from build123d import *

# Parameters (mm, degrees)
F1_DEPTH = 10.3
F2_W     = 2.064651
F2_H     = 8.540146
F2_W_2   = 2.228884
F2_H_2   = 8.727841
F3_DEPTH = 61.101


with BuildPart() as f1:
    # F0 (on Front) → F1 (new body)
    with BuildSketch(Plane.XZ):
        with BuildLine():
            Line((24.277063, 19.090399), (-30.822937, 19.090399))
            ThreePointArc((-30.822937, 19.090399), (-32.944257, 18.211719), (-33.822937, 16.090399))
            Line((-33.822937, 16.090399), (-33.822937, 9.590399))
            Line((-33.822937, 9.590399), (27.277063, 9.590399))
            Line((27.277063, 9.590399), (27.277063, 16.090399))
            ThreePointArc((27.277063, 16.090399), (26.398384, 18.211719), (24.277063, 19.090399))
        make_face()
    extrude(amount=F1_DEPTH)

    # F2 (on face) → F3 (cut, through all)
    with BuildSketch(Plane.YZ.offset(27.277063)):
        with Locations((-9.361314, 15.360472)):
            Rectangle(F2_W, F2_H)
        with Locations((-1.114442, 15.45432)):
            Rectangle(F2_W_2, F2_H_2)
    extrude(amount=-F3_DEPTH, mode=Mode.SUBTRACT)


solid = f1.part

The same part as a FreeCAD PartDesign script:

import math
import FreeCAD as App
import Part
import Sketcher

doc = App.newDocument("Part")
body = doc.addObject("PartDesign::Body", "Body")

sketch1 = body.newObject("Sketcher::SketchObject", "Sketch")
sketch1.AttachmentSupport = (doc.getObject("XZ_Plane"), [""])
sketch1.MapMode = "FlatFace"
sketch1.addGeometry([
    Part.LineSegment(App.Vector(24.3, 19.1, 0), App.Vector(-30.8, 19.1, 0)),
    Part.ArcOfCircle(Part.Circle(App.Vector(-30.8, 16.1, 0), App.Vector(0, 0, 1), 3), math.radians(90), math.radians(180)),
    Part.LineSegment(App.Vector(-33.8, 16.1, 0), App.Vector(-33.8, 9.6, 0)),
    Part.LineSegment(App.Vector(-33.8, 9.6, 0), App.Vector(27.3, 9.6, 0)),
    Part.LineSegment(App.Vector(27.3, 9.6, 0), App.Vector(27.3, 16.1, 0)),
    Part.ArcOfCircle(Part.Circle(App.Vector(24.3, 16.1, 0), App.Vector(0, 0, 1), 3), math.radians(0), math.radians(90)),
], False)
sketch1.addConstraint([
    Sketcher.Constraint("Tangent", 0, 2, 1, 1),
    Sketcher.Constraint("Tangent", 1, 2, 2, 1),
    Sketcher.Constraint("Coincident", 2, 2, 3, 1),
    Sketcher.Constraint("Coincident", 3, 2, 4, 1),
    Sketcher.Constraint("Tangent", 4, 2, 5, 1),
    Sketcher.Constraint("Tangent", 5, 2, 0, 1),
    Sketcher.Constraint("Horizontal", 0),
    Sketcher.Constraint("Vertical", 2),
    Sketcher.Constraint("Horizontal", 3),
    Sketcher.Constraint("Vertical", 4),
    Sketcher.Constraint("Equal", 1, 5),
    Sketcher.Constraint("Radius", 1, 3.000001),
    Sketcher.Constraint("DistanceX", 0, 2, 0, 1, 55.1),
    Sketcher.Constraint("DistanceY", 2, 2, 2, 1, 6.5),
    Sketcher.Constraint("DistanceY", -1, 1, 5, 3, 16.0904),
    Sketcher.Constraint("DistanceX", 1, 3, -1, 1, 30.822936),
])
pad1 = body.newObject("PartDesign::Pad", "Pad")
pad1.Profile = sketch1
pad1.Length = 10.3

sketch2 = body.newObject("Sketcher::SketchObject", "Sketch001")
sketch2.AttachmentSupport = (doc.getObject("YZ_Plane"), [""])
sketch2.MapMode = "FlatFace"
sketch2.AttachmentOffset = App.Placement(App.Vector(0, 0, 27.277063), App.Rotation())
sketch2.addGeometry([
    Part.LineSegment(App.Vector(-10.4, 19.6, 0), App.Vector(-10.4, 11.1, 0)),
    Part.LineSegment(App.Vector(-10.4, 11.1, 0), App.Vector(-8.3, 11.1, 0)),
    Part.LineSegment(App.Vector(-8.3, 11.1, 0), App.Vector(-8.3, 19.6, 0)),
    Part.LineSegment(App.Vector(-8.3, 19.6, 0), App.Vector(-10.4, 19.6, 0)),
    Part.LineSegment(App.Vector(-2.2, 19.8, 0), App.Vector(-2.2, 11.1, 0)),
    Part.LineSegment(App.Vector(-2.2, 11.1, 0), App.Vector(0, 11.1, 0)),
    Part.LineSegment(App.Vector(0, 11.1, 0), App.Vector(0, 19.8, 0)),
    Part.LineSegment(App.Vector(0, 19.8, 0), App.Vector(-2.2, 19.8, 0)),
], False)
sketch2.addConstraint([
    Sketcher.Constraint("Coincident", 0, 2, 1, 1),
    Sketcher.Constraint("Coincident", 1, 2, 2, 1),
    Sketcher.Constraint("Coincident", 2, 2, 3, 1),
    Sketcher.Constraint("Coincident", 3, 2, 0, 1),
    Sketcher.Constraint("Coincident", 4, 2, 5, 1),
    Sketcher.Constraint("Coincident", 5, 2, 6, 1),
    Sketcher.Constraint("Coincident", 6, 2, 7, 1),
    Sketcher.Constraint("Coincident", 7, 2, 4, 1),
    Sketcher.Constraint("Vertical", 0),
    Sketcher.Constraint("Horizontal", 1),
    Sketcher.Constraint("Vertical", 2),
    Sketcher.Constraint("Horizontal", 3),
    Sketcher.Constraint("Vertical", 4),
    Sketcher.Constraint("Horizontal", 5),
    Sketcher.Constraint("Vertical", 6),
    Sketcher.Constraint("Horizontal", 7),
    Sketcher.Constraint("PointOnObject", 5, 2, -2),
    Sketcher.Constraint("Horizontal", 1, 2, 4, 2),
    Sketcher.Constraint("DistanceX", 1, 1, 1, 2, 2.064651),
    Sketcher.Constraint("DistanceY", 4, 2, 4, 1, 8.727841),
    Sketcher.Constraint("DistanceY", -1, 1, 0, 2, 11.090399),
    Sketcher.Constraint("DistanceX", 5, 1, 5, 2, 2.228884),
    Sketcher.Constraint("DistanceY", 0, 2, 0, 1, 8.540146),
    Sketcher.Constraint("DistanceX", 0, 2, -1, 1, 10.39364),
])
pocket1 = body.newObject("PartDesign::Pocket", "Pocket")
pocket1.Profile = sketch2
pocket1.Type = "ThroughAll"

doc.recompute()
